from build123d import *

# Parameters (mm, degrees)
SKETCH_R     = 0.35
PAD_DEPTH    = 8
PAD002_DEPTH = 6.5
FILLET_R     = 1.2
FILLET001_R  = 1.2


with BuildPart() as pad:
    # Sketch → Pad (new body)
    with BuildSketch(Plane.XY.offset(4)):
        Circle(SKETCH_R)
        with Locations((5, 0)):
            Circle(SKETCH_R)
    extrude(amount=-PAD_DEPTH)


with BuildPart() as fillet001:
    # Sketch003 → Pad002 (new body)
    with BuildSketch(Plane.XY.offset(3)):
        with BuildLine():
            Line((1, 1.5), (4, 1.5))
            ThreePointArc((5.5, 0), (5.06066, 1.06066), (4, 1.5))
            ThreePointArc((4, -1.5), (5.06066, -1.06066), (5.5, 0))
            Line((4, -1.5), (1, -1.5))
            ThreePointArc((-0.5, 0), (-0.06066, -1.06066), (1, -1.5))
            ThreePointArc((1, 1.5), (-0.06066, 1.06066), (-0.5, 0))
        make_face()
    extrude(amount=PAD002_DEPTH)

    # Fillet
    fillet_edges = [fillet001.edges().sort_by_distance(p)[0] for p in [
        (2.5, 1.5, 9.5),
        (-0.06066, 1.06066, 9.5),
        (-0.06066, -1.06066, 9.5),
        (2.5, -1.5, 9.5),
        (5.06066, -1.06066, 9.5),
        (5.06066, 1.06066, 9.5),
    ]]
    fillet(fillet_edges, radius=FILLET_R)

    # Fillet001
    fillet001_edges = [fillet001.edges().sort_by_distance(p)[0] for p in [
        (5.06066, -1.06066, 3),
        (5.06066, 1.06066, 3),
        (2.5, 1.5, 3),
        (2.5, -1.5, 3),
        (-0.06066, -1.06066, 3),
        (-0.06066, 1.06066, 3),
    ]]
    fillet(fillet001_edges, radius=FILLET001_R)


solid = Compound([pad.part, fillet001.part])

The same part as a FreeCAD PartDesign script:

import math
import FreeCAD as App
import Part
import Sketcher


def edges_at(feature, points):
    """Names of the edges that pass closest to the given points."""
    edges = feature.Shape.Edges
    near = lambda p: min(range(len(edges)), key=lambda i: edges[i].distToShape(Part.Vertex(*p))[0])
    return sorted({f"Edge{near(p) + 1}" for p in points})

doc = App.newDocument("Part")
body = doc.addObject("PartDesign::Body", "Body")
body.AllowCompound = True

# Sketch on XY plane
sketch1 = body.newObject("Sketcher::SketchObject", "Sketch")
sketch1.AttachmentSupport = (doc.getObject("XY_Plane"), [""])
sketch1.MapMode = "FlatFace"
sketch1.AttachmentOffset = App.Placement(App.Vector(0, 0, 4), App.Rotation())
sketch1.addGeometry([
    Part.Circle(App.Vector(0, 0, 0), App.Vector(0, 0, 1), 0.35),
    Part.Circle(App.Vector(5, 0, 0), App.Vector(0, 0, 1), 0.35),
], False)
sketch1.addConstraint([
    Sketcher.Constraint("Coincident", 0, 3, -1, 1),
    Sketcher.Constraint("Equal", 0, 1),
    Sketcher.Constraint("PointOnObject", 1, 3, -1),
    Sketcher.Constraint("Diameter", 0, 0.7),
    Sketcher.Constraint("DistanceX", -1, 1, 1, 3, 5.0),
])
pad1 = body.newObject("PartDesign::Pad", "Pad")
pad1.Profile = sketch1
pad1.Length = 8
pad1.Reversed = True
body2 = doc.addObject("PartDesign::Body", "Body001")

# Sketch on XY plane
sketch2 = body2.newObject("Sketcher::SketchObject", "Sketch001")
sketch2.AttachmentSupport = (doc.getObject("XY_Plane001"), [""])
sketch2.MapMode = "FlatFace"
sketch2.AttachmentOffset = App.Placement(App.Vector(0, 0, 3), App.Rotation())
sketch2.addGeometry([
    Part.LineSegment(App.Vector(4, 1.5, 0), App.Vector(1, 1.5, 0)),  # 0
    Part.ArcOfCircle(Part.Circle(App.Vector(1, 0, 0), App.Vector(0, 0, 1), 1.5), math.radians(90), math.radians(180)),  # 1
    Part.ArcOfCircle(Part.Circle(App.Vector(1, 0, 0), App.Vector(0, 0, 1), 1.5), math.radians(-180), math.radians(-90)),  # 2
    Part.LineSegment(App.Vector(1, -1.5, 0), App.Vector(4, -1.5, 0)),  # 3
    Part.ArcOfCircle(Part.Circle(App.Vector(4, 0, 0), App.Vector(0, 0, 1), 1.5), math.radians(-90), math.radians(0)),  # 4
    Part.ArcOfCircle(Part.Circle(App.Vector(4, 0, 0), App.Vector(0, 0, 1), 1.5), math.radians(0), math.radians(90)),  # 5
], False)
sketch2.addConstraint([
    Sketcher.Constraint("Tangent", 0, 2, 1, 1),
    Sketcher.Constraint("Tangent", 1, 2, 2, 1),
    Sketcher.Constraint("Tangent", 2, 2, 3, 1),
    Sketcher.Constraint("Tangent", 3, 2, 4, 1),
    Sketcher.Constraint("Tangent", 4, 2, 5, 1),
    Sketcher.Constraint("Tangent", 5, 2, 0, 1),
    Sketcher.Constraint("Horizontal", 0),
    Sketcher.Constraint("Horizontal", 3),
    Sketcher.Constraint("Equal", 1, 2),
    Sketcher.Constraint("Equal", 2, 4),
    Sketcher.Constraint("PointOnObject", 1, 3, -1),
    Sketcher.Constraint("PointOnObject", 1, 2, -1),
    Sketcher.Constraint("PointOnObject", 4, 2, -1),
    Sketcher.Constraint("Radius", 1, 1.500001),
    Sketcher.Constraint("DistanceX", 0, 2, 0, 1, 3.0),
    Sketcher.Constraint("DistanceX", -1, 1, 1, 3, 1.000001),
])
pad2 = body2.newObject("PartDesign::Pad", "Pad001")
pad2.Profile = sketch2
pad2.Length = 6.5
doc.recompute()

fillet = body2.newObject("PartDesign::Fillet", "Fillet")
fillet.Base = (pad2, edges_at(pad2, [
    (2.5, 1.5, 9.5),
    (-0.061, 1.061, 9.5),
    (-0.061, -1.061, 9.5),
    (2.5, -1.5, 9.5),
    (5.061, -1.061, 9.5),
    (5.061, 1.061, 9.5),
]))
fillet.Radius = 1.2
doc.recompute()

fillet2 = body2.newObject("PartDesign::Fillet", "Fillet001")
fillet2.Base = (fillet, edges_at(fillet, [
    (5.061, -1.061, 3),
    (5.061, 1.061, 3),
    (2.5, 1.5, 3),
    (2.5, -1.5, 3),
    (-0.061, -1.061, 3),
    (-0.061, 1.061, 3),
]))
fillet2.Radius = 1.2

doc.recompute()
